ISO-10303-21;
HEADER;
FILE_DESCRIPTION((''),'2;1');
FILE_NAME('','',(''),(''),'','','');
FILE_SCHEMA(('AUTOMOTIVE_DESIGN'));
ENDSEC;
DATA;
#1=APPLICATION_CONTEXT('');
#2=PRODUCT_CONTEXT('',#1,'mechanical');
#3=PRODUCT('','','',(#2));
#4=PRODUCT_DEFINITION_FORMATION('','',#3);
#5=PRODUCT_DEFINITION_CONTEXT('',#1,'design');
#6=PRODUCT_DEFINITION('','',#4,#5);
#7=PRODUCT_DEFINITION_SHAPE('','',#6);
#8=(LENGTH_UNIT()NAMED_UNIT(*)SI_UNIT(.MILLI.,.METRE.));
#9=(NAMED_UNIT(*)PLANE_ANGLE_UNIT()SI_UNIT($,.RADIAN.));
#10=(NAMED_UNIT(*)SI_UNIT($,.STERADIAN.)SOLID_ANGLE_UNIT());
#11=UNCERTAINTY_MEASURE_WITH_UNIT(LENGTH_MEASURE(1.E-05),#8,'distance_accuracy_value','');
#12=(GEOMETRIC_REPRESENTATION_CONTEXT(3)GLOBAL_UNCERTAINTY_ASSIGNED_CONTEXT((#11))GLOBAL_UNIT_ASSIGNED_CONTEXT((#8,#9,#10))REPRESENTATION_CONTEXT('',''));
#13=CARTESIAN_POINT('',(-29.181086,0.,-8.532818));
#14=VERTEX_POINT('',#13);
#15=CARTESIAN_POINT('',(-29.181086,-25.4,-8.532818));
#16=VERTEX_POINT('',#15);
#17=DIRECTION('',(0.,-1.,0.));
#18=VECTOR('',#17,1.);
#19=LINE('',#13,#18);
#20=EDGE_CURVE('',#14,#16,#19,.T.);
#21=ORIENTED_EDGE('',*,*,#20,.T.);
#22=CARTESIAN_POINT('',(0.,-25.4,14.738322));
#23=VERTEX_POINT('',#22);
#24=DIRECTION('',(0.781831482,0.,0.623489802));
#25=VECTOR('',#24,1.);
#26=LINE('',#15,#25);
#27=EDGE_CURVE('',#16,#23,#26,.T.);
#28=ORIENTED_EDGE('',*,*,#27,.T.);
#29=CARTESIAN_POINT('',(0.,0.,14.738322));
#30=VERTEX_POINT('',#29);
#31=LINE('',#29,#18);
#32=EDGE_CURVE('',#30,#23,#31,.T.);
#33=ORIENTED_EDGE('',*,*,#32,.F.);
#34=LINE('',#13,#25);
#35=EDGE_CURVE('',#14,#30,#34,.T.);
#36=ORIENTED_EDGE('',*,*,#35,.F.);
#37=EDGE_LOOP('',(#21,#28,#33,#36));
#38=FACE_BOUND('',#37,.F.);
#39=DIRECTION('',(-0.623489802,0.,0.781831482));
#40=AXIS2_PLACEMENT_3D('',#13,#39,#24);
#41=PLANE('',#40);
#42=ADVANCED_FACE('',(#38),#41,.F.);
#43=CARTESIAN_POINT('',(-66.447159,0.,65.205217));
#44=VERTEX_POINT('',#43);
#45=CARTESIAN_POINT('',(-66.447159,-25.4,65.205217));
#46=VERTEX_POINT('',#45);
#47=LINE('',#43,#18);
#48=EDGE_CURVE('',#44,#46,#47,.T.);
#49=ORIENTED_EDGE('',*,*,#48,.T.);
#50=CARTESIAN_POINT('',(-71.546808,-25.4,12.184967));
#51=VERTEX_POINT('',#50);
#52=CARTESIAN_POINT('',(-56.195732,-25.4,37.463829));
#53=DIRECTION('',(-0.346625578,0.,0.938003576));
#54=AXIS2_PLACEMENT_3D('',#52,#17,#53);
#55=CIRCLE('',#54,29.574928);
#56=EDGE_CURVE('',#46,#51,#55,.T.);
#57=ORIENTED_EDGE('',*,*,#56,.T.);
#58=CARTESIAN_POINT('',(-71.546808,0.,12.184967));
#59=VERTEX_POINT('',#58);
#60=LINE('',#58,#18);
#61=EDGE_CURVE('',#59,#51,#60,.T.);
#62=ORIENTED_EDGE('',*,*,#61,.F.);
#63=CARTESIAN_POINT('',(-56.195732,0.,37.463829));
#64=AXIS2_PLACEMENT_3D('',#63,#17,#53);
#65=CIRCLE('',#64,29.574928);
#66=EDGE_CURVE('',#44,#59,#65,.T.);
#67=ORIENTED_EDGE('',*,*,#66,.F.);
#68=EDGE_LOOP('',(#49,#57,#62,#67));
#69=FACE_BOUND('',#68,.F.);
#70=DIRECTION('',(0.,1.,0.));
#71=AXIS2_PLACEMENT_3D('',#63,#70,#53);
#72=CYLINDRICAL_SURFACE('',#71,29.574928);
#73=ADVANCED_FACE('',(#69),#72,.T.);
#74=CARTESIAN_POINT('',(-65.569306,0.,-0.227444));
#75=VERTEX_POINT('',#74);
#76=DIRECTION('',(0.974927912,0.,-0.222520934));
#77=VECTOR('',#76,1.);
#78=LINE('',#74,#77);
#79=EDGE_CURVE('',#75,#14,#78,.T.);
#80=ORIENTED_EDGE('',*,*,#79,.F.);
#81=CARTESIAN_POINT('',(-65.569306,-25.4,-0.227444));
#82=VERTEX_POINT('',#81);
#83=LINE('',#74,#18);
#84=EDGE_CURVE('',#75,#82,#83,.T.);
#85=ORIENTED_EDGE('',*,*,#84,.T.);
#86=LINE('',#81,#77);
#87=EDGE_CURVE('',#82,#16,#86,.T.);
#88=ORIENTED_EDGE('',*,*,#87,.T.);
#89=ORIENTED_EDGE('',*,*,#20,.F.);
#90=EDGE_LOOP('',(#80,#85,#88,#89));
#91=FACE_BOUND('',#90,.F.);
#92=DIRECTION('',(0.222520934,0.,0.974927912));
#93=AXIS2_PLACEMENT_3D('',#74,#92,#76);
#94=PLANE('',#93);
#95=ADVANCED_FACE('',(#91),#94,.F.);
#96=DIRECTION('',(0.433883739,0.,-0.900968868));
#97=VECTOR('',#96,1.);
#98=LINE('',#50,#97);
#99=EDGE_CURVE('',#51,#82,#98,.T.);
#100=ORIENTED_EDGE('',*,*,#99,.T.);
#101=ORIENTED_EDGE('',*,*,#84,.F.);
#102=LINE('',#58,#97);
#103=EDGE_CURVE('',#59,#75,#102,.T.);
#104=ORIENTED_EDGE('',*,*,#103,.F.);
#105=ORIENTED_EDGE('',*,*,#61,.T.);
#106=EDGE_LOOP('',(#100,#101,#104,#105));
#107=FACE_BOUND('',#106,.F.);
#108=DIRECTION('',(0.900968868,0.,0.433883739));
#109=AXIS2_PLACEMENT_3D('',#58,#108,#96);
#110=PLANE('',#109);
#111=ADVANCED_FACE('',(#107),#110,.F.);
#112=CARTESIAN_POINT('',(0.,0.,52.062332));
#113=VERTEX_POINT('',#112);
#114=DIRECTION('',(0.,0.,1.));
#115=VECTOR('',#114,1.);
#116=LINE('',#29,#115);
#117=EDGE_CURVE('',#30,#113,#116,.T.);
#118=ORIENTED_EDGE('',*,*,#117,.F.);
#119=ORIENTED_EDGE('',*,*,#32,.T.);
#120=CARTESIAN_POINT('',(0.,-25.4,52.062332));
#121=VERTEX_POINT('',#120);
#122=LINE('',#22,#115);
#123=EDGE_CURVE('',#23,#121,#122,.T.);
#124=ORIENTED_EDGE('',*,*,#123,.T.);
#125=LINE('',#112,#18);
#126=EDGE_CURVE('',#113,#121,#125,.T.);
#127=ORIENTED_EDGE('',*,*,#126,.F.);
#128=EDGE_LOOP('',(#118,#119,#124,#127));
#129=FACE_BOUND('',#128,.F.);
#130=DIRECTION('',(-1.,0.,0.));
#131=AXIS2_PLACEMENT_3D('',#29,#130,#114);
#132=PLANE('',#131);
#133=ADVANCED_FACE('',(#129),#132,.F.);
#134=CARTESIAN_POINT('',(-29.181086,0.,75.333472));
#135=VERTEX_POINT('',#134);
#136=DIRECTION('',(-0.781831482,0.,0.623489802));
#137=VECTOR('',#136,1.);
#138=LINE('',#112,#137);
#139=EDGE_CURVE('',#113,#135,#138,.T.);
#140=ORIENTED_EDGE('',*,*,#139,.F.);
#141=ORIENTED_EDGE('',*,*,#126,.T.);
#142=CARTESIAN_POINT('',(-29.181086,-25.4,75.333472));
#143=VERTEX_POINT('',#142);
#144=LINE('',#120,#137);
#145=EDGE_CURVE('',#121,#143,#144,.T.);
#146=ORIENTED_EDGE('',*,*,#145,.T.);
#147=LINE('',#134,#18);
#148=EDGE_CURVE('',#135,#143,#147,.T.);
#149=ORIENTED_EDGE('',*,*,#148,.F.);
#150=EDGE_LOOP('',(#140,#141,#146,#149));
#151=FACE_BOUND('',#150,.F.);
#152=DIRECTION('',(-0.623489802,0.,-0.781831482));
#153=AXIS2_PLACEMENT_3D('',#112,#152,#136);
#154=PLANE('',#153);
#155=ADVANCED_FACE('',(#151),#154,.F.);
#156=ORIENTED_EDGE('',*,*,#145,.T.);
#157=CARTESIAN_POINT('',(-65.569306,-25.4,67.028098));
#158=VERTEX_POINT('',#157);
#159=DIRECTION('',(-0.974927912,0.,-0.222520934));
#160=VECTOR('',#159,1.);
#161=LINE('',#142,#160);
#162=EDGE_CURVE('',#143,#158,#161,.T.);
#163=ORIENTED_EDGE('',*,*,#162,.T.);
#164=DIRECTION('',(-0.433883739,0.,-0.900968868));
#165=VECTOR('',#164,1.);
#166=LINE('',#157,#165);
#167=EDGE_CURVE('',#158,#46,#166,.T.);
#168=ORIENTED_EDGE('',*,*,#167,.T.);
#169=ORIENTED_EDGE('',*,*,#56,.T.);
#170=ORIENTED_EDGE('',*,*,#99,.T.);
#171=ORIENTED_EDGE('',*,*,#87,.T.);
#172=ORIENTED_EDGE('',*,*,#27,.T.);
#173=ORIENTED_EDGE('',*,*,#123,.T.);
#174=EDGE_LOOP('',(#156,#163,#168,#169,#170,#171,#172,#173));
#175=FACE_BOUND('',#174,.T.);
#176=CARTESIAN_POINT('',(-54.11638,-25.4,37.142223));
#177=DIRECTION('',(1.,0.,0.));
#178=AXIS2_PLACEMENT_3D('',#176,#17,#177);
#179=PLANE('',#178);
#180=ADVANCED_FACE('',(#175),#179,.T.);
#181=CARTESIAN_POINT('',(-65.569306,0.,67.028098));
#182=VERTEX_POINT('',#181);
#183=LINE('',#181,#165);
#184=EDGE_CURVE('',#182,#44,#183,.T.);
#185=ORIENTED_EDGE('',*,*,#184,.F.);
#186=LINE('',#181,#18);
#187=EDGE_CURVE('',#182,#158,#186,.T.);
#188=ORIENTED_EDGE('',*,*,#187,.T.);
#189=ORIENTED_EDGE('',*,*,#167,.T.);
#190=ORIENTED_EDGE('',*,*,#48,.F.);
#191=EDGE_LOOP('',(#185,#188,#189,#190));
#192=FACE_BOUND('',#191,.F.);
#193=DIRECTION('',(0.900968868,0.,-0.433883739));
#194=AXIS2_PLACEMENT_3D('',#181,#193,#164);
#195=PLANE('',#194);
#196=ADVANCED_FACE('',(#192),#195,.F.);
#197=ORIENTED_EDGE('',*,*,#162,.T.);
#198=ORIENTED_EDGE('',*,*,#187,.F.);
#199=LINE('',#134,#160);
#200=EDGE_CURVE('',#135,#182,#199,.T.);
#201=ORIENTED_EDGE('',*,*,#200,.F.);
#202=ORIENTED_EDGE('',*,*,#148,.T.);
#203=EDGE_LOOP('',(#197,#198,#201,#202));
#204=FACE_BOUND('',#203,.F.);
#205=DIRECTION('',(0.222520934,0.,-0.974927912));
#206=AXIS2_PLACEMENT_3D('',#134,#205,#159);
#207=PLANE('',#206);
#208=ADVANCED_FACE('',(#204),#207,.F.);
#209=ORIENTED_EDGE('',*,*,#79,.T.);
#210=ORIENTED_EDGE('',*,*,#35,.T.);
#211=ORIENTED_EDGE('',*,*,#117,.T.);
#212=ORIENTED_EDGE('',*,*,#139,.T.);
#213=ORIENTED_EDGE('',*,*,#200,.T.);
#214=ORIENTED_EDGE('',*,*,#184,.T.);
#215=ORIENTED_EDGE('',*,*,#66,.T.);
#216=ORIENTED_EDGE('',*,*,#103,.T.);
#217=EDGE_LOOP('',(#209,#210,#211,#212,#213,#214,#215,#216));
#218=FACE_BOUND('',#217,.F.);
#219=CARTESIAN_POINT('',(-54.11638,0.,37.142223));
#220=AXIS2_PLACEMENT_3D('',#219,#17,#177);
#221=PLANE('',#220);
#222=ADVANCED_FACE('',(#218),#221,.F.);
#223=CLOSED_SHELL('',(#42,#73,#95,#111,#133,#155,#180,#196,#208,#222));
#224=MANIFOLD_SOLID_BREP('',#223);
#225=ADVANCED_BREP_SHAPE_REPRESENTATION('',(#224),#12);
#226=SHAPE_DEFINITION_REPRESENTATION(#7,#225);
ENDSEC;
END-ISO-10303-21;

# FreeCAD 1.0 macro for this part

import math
import FreeCAD as App
import Part
import Sketcher
Q = App.Units.Quantity

doc = App.newDocument("Part")
body = doc.addObject("PartDesign::Body", "Body")

# Sketch on XZ plane
sketch1 = body.newObject("Sketcher::SketchObject", "Sketch")
sketch1.AttachmentSupport = (doc.getObject("XZ_Plane"), [""])
sketch1.MapMode = "FlatFace"
sketch1.addGeometry([
    Part.ArcOfCircle(Part.Circle(App.Vector(-56.195732, 37.463829, 0), App.Vector(0, 0, 1), 29.574928), math.radians(110.281059), math.radians(360)),
    Part.ArcOfCircle(Part.Circle(App.Vector(-56.195732, 37.463829, 0), App.Vector(0, 0, 1), 29.574928), math.radians(0), math.radians(110.281059)),
], False)
sketch1.addConstraint([
    Sketcher.Constraint("Tangent", 0, 1, 1, 2),
    Sketcher.Constraint("Coincident", 1, 1, 0, 2),
    Sketcher.Constraint("Horizontal", 0, 3, 1, 1),
    Sketcher.Constraint("Radius", 0, Q("29.574928 mm")),
    Sketcher.Constraint("DistanceY", -1, 1, 0, 3, Q("37.463829 mm")),
    Sketcher.Constraint("DistanceX", 0, 1, -1, 1, Q("66.447159 mm")),
    Sketcher.Constraint("DistanceY", 0, 3, 0, 1, Q("27.741388 mm")),
])
pad1 = body.newObject("PartDesign::Pad", "Pad")
pad1.Profile = sketch1
pad1.Length = Q("1 in")

# Sketch on XZ plane
sketch2 = body.newObject("Sketcher::SketchObject", "Sketch001")
sketch2.AttachmentSupport = (doc.getObject("XZ_Plane"), [""])
sketch2.MapMode = "FlatFace"
sketch2.addGeometry([
    Part.LineSegment(App.Vector(-71.546808, 12.184967, 0), App.Vector(-65.569306, -0.227444, 0)),  # 0
    Part.LineSegment(App.Vector(-65.569306, -0.227444, 0), App.Vector(-29.181086, -8.532818, 0)),  # 1
    Part.LineSegment(App.Vector(-29.181086, -8.532818, 0), App.Vector(0, 14.738322, 0)),  # 2
    Part.LineSegment(App.Vector(0, 14.738322, 0), App.Vector(0, 52.062332, 0)),  # 3
    Part.LineSegment(App.Vector(0, 52.062332, 0), App.Vector(-29.181086, 75.333472, 0)),  # 4
    Part.LineSegment(App.Vector(-29.181086, 75.333472, 0), App.Vector(-65.569306, 67.028098, 0)),  # 5
    Part.LineSegment(App.Vector(-65.569306, 67.028098, 0), App.Vector(-66.447159, 65.205217, 0)),  # 6
    Part.ArcOfCircle(Part.Circle(App.Vector(-56.195732, 37.463829, 0), App.Vector(0, 0, 1), 29.574928), math.radians(110.281059), math.radians(238.730977)),  # 7
], False)
sketch2.addConstraint([
    Sketcher.Constraint("Coincident", 0, 2, 1, 1),
    Sketcher.Constraint("Coincident", 1, 2, 2, 1),
    Sketcher.Constraint("Coincident", 2, 2, 3, 1),
    Sketcher.Constraint("Coincident", 3, 2, 4, 1),
    Sketcher.Constraint("Coincident", 4, 2, 5, 1),
    Sketcher.Constraint("Coincident", 5, 2, 6, 1),
    Sketcher.Constraint("Coincident", 6, 2, 7, 1),
    Sketcher.Constraint("Coincident", 7, 2, 0, 1),
    Sketcher.Constraint("Vertical", 3),
    Sketcher.Constraint("PointOnObject", 2, 2, -2),
    Sketcher.Constraint("Vertical", 1, 2, 4, 2),
    Sketcher.Constraint("Vertical", 0, 2, 5, 2),
    Sketcher.Constraint("Equal", 1, 2),
    Sketcher.Constraint("Equal", 2, 4),
    Sketcher.Constraint("Equal", 4, 5),
    Sketcher.Constraint("Radius", 7, Q("29.574928 mm")),
    Sketcher.Constraint("DistanceY", 3, 1, 3, 2, Q("37.32401 mm")),
    Sketcher.Constraint("DistanceY", -1, 1, 5, 2, Q("67.028098 mm")),
    Sketcher.Constraint("Distance", 1, Q("37.32401 mm")),
    Sketcher.Constraint("DistanceY", -1, 1, 7, 3, Q("37.463829 mm")),
    Sketcher.Constraint("DistanceY", -1, 1, 2, 2, Q("14.738322 mm")),
    Sketcher.Constraint("DistanceY", -1, 1, 4, 2, Q("75.333472 mm")),
    Sketcher.Constraint("DistanceX", 6, 2, -1, 1, Q("66.447159 mm")),
    Sketcher.Constraint("DistanceY", 6, 2, 5, 2, Q("1.822881 mm")),
    Sketcher.Constraint("DistanceY", 0, 2, 7, 2, Q("12.412411 mm")),
])
pad2 = body.newObject("PartDesign::Pad", "Pad001")
pad2.Profile = sketch2
pad2.Length = Q("1 in")

doc.recompute()
